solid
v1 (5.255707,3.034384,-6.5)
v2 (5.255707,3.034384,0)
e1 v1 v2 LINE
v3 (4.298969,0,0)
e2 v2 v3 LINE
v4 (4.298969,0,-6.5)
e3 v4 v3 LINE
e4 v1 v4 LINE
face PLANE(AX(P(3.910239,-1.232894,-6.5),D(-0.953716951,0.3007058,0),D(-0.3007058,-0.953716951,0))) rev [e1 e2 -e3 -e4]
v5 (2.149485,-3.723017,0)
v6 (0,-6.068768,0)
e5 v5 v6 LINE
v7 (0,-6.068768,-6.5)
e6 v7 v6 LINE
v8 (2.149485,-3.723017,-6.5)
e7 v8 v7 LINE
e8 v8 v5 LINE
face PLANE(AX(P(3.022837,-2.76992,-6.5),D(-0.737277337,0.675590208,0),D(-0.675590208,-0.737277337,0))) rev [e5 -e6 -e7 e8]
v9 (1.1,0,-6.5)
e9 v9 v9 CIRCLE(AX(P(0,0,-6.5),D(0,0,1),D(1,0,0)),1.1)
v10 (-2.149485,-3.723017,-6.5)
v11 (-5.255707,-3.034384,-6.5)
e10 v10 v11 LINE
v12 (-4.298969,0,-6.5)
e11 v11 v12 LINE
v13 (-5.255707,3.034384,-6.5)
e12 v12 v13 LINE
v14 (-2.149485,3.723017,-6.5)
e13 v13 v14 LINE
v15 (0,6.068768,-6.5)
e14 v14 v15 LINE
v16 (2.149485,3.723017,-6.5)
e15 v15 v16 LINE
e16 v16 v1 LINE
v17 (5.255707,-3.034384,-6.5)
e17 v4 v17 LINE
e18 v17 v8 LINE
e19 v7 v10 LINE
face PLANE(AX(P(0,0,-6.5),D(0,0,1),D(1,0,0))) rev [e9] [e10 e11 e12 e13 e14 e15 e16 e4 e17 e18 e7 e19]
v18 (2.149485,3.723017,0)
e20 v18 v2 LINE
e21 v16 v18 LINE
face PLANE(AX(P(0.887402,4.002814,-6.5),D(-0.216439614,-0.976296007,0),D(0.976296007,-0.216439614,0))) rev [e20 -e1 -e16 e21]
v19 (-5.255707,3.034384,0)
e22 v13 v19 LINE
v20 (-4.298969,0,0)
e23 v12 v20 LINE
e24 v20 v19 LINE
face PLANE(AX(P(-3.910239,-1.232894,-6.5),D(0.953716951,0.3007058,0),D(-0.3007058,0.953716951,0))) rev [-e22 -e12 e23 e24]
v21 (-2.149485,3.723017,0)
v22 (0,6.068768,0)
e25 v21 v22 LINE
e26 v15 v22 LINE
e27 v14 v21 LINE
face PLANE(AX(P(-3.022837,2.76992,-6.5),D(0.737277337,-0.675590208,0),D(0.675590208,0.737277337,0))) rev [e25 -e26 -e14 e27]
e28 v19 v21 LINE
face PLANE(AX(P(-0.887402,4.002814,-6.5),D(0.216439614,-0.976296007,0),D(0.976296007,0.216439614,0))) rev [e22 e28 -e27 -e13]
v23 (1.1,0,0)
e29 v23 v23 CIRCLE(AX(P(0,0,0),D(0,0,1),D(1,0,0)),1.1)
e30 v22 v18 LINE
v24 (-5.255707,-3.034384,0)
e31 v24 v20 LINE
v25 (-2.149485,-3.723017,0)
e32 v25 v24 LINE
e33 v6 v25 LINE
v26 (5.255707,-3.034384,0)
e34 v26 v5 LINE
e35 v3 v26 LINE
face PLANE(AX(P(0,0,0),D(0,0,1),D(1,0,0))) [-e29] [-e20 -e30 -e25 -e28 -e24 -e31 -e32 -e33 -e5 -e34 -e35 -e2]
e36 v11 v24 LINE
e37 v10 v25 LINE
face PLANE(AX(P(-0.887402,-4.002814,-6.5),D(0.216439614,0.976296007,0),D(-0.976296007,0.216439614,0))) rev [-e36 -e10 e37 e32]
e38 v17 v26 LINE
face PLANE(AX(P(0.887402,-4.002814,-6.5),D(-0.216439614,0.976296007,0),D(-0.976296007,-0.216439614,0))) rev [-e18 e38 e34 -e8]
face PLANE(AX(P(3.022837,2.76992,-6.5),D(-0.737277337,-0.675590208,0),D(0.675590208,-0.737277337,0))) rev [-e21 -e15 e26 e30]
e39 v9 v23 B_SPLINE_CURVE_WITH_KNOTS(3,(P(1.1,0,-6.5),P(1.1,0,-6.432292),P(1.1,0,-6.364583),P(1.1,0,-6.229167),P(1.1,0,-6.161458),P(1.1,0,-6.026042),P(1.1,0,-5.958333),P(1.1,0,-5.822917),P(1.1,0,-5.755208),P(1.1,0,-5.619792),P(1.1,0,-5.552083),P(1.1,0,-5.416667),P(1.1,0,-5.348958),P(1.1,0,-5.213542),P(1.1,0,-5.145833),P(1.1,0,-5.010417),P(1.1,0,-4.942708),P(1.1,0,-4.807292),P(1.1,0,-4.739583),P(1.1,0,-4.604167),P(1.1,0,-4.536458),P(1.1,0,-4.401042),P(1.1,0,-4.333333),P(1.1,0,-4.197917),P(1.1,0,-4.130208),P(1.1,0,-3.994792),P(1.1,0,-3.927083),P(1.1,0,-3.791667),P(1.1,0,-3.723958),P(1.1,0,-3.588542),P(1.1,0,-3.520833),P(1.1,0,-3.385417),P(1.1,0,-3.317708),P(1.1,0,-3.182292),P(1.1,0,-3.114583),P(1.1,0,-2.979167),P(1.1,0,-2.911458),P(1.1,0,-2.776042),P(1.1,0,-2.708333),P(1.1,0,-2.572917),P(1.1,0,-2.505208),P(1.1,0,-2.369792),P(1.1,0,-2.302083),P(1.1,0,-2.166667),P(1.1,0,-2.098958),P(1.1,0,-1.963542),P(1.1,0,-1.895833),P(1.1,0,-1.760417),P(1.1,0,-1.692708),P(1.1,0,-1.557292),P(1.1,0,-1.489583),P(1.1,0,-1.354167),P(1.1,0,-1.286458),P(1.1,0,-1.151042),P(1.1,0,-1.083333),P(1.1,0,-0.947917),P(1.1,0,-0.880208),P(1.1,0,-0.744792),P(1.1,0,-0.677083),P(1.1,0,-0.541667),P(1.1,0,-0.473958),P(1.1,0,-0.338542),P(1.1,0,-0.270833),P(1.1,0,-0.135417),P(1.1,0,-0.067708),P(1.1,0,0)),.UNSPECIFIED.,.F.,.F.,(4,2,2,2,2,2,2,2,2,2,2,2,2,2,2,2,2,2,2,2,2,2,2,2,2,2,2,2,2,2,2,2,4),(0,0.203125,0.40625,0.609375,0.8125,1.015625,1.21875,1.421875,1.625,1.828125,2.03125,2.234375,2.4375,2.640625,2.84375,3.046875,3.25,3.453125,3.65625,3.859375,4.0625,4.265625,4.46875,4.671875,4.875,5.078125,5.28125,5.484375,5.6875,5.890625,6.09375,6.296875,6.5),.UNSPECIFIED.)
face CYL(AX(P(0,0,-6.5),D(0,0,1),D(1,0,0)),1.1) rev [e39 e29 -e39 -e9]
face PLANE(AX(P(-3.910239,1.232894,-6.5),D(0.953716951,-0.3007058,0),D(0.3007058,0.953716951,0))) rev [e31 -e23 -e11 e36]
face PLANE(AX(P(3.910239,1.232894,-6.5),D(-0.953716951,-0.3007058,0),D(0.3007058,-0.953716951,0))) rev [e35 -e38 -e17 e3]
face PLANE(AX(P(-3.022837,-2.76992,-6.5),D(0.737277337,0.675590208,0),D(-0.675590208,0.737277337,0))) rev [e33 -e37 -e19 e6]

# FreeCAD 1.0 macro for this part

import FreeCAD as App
import Part
import Sketcher
Q = App.Units.Quantity


def add_polygon(sketch, points):
    """Adds a closed chain of lines whose ends are joined by coincident constraints."""
    first, n = sketch.GeometryCount, len(points)
    for a, b in zip(points, points[1:] + points[:1]):
        sketch.addGeometry(Part.LineSegment(App.Vector(*a, 0), App.Vector(*b, 0)), False)
    for i in range(n):
        sketch.addConstraint(Sketcher.Constraint("Coincident", first + i, 2, first + (i + 1) % n, 1))

doc = App.newDocument("Part")
body = doc.addObject("PartDesign::Body", "Body")

# Sketch on XY plane
sketch1 = body.newObject("Sketcher::SketchObject", "Sketch")
sketch1.AttachmentSupport = (doc.getObject("XY_Plane"), [""])
sketch1.MapMode = "FlatFace"
add_polygon(sketch1, [(0, -6.068768), (2.149485, -3.723017), (5.255707, -3.034384), (4.298969, 0), (5.255707, 3.034384), (2.149485, 3.723017), (0, 6.068768), (-2.149485, 3.723017), (-5.255707, 3.034384), (-4.298969, 0), (-5.255707, -3.034384), (-2.149485, -3.723017)])  # lines 0-11
sketch1.addGeometry(Part.Circle(App.Vector(0, 0, 0), App.Vector(0, 0, 1), 1.1), False)  # 12
sketch1.addConstraint([
    Sketcher.Constraint("Coincident", 12, 3, -1, 1),
    Sketcher.Constraint("Symmetric", 0, 2, 6, 2, -1, 1),
    Sketcher.Constraint("Symmetric", 1, 2, 7, 2, -1, 1),
    Sketcher.Constraint("Symmetric", 2, 2, 8, 2, -1, 1),
    Sketcher.Constraint("Symmetric", 3, 2, 9, 2, -1, 1),
    Sketcher.Constraint("Symmetric", 4, 2, 10, 2, -1, 1),
    Sketcher.Constraint("Symmetric", 5, 2, 11, 2, -1, 1),
    Sketcher.Constraint("Symmetric", 4, 2, 6, 2, -2),
    Sketcher.Constraint("Symmetric", 3, 2, 7, 2, -2),
    Sketcher.Constraint("PointOnObject", 2, 2, -1),
    Sketcher.Constraint("PointOnObject", 5, 2, -2),
    Sketcher.Constraint("Equal", 0, 1),
    Sketcher.Constraint("Equal", 1, 2),
    Sketcher.Constraint("Diameter", 12, 2.2),
    Sketcher.Constraint("Angle", 0, Q("47.5 deg")),
    Sketcher.Constraint("Angle", 1, Q("12.5 deg")),
    Sketcher.Constraint("Angle", 2, Q("107.5 deg")),
    Sketcher.Constraint("DistanceY", 0, 2, 3, 2, 6.757401),
])
pad1 = body.newObject("PartDesign::Pad", "Pad")
pad1.Profile = sketch1
pad1.Length = 6.5
pad1.Reversed = True

doc.recompute()
